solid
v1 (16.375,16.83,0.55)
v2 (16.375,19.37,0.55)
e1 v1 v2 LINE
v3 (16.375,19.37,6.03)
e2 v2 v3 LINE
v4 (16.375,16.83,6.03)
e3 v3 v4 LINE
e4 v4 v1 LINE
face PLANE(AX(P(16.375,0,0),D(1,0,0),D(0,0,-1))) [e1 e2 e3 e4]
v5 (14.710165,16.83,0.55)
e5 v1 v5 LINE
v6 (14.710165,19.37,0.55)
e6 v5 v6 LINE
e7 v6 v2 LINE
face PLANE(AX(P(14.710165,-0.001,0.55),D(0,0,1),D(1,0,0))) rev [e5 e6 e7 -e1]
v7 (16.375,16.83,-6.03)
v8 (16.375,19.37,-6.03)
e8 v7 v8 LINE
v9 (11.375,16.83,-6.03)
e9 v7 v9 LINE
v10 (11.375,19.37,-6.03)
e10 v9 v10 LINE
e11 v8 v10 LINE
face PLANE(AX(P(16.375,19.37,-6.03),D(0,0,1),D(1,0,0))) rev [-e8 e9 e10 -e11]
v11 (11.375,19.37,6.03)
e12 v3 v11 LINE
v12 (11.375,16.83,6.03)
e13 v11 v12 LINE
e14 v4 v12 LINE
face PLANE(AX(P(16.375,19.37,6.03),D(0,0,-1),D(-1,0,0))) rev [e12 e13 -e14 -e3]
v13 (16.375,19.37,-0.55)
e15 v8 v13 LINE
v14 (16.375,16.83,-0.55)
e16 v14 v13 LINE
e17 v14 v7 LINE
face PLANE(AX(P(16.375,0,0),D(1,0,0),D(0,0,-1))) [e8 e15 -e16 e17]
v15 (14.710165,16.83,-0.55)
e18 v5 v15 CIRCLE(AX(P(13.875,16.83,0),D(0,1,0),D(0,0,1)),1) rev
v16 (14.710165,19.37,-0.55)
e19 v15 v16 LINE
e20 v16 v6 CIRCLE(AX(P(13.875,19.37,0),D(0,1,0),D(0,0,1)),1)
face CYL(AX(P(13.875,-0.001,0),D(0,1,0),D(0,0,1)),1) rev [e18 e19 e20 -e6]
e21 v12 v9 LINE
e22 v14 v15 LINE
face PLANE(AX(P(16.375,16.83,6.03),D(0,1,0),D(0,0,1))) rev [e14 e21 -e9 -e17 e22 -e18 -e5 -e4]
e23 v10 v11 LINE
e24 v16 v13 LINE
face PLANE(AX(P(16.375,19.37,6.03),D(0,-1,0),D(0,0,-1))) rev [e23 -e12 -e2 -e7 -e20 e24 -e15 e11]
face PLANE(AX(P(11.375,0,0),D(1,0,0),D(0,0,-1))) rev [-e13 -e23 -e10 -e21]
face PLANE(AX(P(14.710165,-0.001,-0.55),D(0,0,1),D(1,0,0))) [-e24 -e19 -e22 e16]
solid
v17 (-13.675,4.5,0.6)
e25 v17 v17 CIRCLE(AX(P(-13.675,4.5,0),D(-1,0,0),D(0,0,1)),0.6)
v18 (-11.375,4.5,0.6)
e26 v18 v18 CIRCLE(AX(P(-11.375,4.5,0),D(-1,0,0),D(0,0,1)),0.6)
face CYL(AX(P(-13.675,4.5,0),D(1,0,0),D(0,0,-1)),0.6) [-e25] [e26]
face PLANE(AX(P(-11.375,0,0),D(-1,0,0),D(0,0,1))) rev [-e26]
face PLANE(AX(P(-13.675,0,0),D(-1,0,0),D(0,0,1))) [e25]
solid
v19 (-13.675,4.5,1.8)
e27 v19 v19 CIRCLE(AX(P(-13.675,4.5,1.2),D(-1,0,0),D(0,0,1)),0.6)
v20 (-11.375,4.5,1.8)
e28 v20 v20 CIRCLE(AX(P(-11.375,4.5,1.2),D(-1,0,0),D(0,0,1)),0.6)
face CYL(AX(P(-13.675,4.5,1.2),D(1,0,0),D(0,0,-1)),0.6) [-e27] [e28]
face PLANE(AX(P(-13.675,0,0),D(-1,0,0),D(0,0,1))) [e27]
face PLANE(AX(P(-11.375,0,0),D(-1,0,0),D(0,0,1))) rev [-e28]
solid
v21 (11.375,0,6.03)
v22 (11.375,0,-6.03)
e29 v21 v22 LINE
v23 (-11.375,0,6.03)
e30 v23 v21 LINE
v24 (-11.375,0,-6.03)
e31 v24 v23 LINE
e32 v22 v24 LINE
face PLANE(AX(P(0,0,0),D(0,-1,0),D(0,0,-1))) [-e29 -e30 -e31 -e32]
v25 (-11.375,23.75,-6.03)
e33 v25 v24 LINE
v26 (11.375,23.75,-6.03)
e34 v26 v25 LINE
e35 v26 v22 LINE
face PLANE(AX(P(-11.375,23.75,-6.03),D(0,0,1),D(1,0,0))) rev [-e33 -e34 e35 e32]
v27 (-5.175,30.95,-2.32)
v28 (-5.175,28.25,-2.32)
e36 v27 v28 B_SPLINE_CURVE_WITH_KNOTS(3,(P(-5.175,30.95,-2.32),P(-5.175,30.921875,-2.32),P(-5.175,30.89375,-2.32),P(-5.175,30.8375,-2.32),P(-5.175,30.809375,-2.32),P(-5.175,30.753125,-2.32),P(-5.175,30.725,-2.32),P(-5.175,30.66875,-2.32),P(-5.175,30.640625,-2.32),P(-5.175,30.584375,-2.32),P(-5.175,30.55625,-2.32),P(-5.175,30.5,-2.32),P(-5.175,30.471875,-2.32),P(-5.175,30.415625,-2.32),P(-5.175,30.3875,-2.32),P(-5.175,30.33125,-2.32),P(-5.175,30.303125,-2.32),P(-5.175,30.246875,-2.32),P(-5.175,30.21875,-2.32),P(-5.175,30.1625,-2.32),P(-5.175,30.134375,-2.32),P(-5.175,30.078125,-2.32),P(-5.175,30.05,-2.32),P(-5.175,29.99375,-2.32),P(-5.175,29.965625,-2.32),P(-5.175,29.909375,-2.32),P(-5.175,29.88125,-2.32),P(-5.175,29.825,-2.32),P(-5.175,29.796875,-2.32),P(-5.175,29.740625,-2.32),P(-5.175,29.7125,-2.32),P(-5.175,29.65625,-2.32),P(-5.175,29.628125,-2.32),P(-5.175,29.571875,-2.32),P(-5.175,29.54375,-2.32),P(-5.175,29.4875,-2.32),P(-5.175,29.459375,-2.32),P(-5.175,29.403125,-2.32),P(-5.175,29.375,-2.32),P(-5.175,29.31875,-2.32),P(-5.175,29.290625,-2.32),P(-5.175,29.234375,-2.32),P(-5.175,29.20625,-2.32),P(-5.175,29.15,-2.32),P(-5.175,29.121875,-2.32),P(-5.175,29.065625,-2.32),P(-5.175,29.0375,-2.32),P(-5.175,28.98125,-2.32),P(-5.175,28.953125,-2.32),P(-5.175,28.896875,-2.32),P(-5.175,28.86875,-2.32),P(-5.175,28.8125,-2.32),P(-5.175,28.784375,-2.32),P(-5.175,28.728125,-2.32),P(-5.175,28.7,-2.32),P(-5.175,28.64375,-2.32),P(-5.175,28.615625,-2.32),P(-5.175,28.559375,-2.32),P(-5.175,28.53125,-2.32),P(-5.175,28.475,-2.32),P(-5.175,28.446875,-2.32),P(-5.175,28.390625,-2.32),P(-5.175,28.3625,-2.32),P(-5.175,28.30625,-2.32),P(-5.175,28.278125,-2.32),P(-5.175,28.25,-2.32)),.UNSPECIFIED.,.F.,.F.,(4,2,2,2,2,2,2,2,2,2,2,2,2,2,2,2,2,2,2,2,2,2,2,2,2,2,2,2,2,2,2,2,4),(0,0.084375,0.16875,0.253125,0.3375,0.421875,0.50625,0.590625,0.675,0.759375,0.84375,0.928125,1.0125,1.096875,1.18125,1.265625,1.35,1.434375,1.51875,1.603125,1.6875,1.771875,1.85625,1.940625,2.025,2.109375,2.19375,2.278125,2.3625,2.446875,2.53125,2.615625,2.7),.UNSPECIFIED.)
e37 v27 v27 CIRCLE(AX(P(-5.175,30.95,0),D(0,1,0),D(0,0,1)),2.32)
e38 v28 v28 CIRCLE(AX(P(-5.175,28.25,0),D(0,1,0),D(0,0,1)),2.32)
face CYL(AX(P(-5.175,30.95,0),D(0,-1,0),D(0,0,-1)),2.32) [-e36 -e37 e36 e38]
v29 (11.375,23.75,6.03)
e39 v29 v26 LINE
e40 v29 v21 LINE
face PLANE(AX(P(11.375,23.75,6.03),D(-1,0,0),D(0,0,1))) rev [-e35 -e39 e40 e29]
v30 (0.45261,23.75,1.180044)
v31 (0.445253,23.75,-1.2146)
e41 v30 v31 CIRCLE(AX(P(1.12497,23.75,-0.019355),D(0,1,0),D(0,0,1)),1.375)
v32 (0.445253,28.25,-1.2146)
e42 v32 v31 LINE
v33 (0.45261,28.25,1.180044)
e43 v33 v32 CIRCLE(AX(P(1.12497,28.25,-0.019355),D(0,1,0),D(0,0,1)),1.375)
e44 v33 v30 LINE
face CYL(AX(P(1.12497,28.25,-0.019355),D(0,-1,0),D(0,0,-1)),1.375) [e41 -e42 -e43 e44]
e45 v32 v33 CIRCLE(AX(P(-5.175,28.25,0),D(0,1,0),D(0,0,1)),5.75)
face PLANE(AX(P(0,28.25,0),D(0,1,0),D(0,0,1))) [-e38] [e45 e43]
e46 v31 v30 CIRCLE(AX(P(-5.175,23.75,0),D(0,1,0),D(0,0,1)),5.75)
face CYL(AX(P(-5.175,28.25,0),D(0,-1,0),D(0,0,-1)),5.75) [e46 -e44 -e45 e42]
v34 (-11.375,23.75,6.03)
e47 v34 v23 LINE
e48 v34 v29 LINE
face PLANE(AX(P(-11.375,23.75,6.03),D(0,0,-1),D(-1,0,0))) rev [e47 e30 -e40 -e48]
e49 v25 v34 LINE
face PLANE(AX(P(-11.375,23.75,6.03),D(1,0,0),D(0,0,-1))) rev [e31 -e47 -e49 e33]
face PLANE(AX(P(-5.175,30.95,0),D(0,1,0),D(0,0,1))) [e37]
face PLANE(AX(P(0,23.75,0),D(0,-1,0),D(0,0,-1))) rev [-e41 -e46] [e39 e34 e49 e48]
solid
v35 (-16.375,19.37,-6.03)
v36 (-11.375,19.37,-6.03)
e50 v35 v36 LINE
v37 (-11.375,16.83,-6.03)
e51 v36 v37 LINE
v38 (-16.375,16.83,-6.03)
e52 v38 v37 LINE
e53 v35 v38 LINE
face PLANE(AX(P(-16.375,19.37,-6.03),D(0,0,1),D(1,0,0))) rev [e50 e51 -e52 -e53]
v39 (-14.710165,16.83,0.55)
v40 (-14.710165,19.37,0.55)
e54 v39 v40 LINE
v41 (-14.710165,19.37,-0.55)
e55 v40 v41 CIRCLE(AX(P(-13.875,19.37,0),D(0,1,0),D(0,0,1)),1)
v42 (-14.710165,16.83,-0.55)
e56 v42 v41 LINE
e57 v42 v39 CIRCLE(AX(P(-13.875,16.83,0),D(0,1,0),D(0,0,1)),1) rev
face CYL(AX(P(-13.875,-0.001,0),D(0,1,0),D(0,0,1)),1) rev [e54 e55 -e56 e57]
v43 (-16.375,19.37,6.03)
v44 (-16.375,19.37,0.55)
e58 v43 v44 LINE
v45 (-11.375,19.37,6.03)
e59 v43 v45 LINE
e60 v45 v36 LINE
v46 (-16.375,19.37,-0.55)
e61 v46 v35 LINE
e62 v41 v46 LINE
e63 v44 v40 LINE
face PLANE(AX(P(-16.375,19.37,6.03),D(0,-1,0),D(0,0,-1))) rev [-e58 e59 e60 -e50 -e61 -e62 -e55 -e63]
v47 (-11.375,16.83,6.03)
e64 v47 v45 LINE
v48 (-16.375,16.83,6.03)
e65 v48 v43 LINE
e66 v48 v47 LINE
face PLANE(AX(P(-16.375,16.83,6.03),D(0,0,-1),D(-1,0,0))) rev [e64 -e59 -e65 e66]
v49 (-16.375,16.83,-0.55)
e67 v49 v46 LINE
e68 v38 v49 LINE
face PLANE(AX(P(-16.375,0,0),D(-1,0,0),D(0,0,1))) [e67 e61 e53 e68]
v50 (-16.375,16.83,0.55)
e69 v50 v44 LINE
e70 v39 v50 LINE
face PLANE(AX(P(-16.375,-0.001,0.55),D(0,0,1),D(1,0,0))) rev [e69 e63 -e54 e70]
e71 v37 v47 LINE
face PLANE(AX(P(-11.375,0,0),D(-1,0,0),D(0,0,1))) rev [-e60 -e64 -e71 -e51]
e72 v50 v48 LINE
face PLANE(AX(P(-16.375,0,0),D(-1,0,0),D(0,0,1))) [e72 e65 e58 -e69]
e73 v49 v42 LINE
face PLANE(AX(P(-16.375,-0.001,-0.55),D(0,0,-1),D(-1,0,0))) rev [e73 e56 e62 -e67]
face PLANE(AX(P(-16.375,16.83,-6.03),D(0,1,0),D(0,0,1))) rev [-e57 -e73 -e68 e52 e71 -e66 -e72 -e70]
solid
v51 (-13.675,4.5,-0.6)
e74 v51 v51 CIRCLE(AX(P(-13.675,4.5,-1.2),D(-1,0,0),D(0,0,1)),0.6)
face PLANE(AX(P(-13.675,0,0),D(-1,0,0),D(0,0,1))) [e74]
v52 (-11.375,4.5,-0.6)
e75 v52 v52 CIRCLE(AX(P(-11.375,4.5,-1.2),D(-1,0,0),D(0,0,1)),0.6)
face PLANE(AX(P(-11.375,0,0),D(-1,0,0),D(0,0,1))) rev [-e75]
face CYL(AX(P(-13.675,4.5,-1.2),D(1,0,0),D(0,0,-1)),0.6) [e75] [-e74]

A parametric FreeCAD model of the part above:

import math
import FreeCAD as App
import Part
import Sketcher

doc = App.newDocument("Part")
body = doc.addObject("PartDesign::Body", "Body")

sketch1 = body.newObject("Sketcher::SketchObject", "Sketch")
sketch1.AttachmentSupport = (doc.getObject("XZ_Plane"), [""])
sketch1.MapMode = "FlatFace"
sketch1.addGeometry(Part.LineSegment(App.Vector(-11, -6, 0), App.Vector(-11, 6, 0)), False)
sketch1.addGeometry(Part.LineSegment(App.Vector(-11, 6, 0), App.Vector(11, 6, 0)), False)
sketch1.addGeometry(Part.LineSegment(App.Vector(11, 6, 0), App.Vector(11, -6, 0)), False)
sketch1.addGeometry(Part.LineSegment(App.Vector(11, -6, 0), App.Vector(-11, -6, 0)), False)
sketch1.addConstraint(Sketcher.Constraint("Coincident", 0, 2, 1, 1))
sketch1.addConstraint(Sketcher.Constraint("Coincident", 1, 2, 2, 1))
sketch1.addConstraint(Sketcher.Constraint("Coincident", 2, 2, 3, 1))
sketch1.addConstraint(Sketcher.Constraint("Coincident", 3, 2, 0, 1))
sketch1.addConstraint(Sketcher.Constraint("Vertical", 0))
sketch1.addConstraint(Sketcher.Constraint("Horizontal", 1))
sketch1.addConstraint(Sketcher.Constraint("Vertical", 2))
sketch1.addConstraint(Sketcher.Constraint("Horizontal", 3))
sketch1.addConstraint(Sketcher.Constraint("Symmetric", 0, 2, 2, 2, -1, 1))
sketch1.addConstraint(Sketcher.Constraint("DistanceX", 1, 1, 1, 2, 22.75))
sketch1.addConstraint(Sketcher.Constraint("DistanceY", 0, 1, 0, 2, 12.06))
pad1 = body.newObject("PartDesign::Pad", "Pad")
pad1.Profile = sketch1
pad1.Length = 23.75
pad1.Reversed = True

sketch2 = body.newObject("Sketcher::SketchObject", "Sketch001")
sketch2.AttachmentSupport = (doc.getObject("XZ_Plane"), [""])
sketch2.MapMode = "FlatFace"
sketch2.AttachmentOffset = App.Placement(App.Vector(0, 0, -23.75), App.Rotation())
sketch2.addGeometry(Part.ArcOfCircle(Part.Circle(App.Vector(1.1, 0, 0), App.Vector(0, 0, 1), 1.4), math.radians(-120), math.radians(119)), False)
sketch2.addGeometry(Part.ArcOfCircle(Part.Circle(App.Vector(-5.2, 0, 0), App.Vector(0, 0, 1), 5.8), math.radians(12), math.radians(348)), False)
sketch2.addConstraint(Sketcher.Constraint("Coincident", 0, 1, 1, 2))
sketch2.addConstraint(Sketcher.Constraint("Coincident", 1, 1, 0, 2))
sketch2.addConstraint(Sketcher.Constraint("PointOnObject", 1, 3, -1))
sketch2.addConstraint(Sketcher.Constraint("Radius", 1, 5.75))
sketch2.addConstraint(Sketcher.Constraint("Radius", 0, 1.375))
sketch2.addConstraint(Sketcher.Constraint("DistanceX", 1, 3, -1, 1, 5.175))
sketch2.addConstraint(Sketcher.Constraint("DistanceY", 0, 1, -1, 1, 1.2146))
sketch2.addConstraint(Sketcher.Constraint("DistanceY", 0, 3, 1, 1, 1.199399))
pad2 = body.newObject("PartDesign::Pad", "Pad001")
pad2.Profile = sketch2
pad2.Length = 4.5
pad2.Reversed = True

sketch3 = body.newObject("Sketcher::SketchObject", "Sketch002")
sketch3.AttachmentSupport = (doc.getObject("XZ_Plane"), [""])
sketch3.MapMode = "FlatFace"
sketch3.AttachmentOffset = App.Placement(App.Vector(0, 0, -28.25), App.Rotation())
sketch3.addGeometry(Part.Circle(App.Vector(-5.2, 0, 0), App.Vector(0, 0, 1), 2.3), False)
sketch3.addConstraint(Sketcher.Constraint("PointOnObject", 0, 3, -1))
sketch3.addConstraint(Sketcher.Constraint("Diameter", 0, 4.64))
sketch3.addConstraint(Sketcher.Constraint("DistanceX", 0, 3, -1, 1, 5.175))
pad3 = body.newObject("PartDesign::Pad", "Pad002")
pad3.Profile = sketch3
pad3.Length = 2.7
pad3.Reversed = True
body2 = doc.addObject("PartDesign::Body", "Body001")

sketch4 = body2.newObject("Sketcher::SketchObject", "Sketch003")
sketch4.AttachmentSupport = (doc.getObject("YZ_Plane001"), [""])
sketch4.MapMode = "FlatFace"
sketch4.AttachmentOffset = App.Placement(App.Vector(0, 0, 11.375), App.Rotation())
sketch4.addGeometry(Part.LineSegment(App.Vector(19.4, 6, 0), App.Vector(16.8, 6, 0)), False)
sketch4.addGeometry(Part.LineSegment(App.Vector(16.8, 6, 0), App.Vector(16.8, -6, 0)), False)
sketch4.addGeometry(Part.LineSegment(App.Vector(16.8, -6, 0), App.Vector(19.4, -6, 0)), False)
sketch4.addGeometry(Part.LineSegment(App.Vector(19.4, -6, 0), App.Vector(19.4, 6, 0)), False)
sketch4.addConstraint(Sketcher.Constraint("Coincident", 0, 2, 1, 1))
sketch4.addConstraint(Sketcher.Constraint("Coincident", 1, 2, 2, 1))
sketch4.addConstraint(Sketcher.Constraint("Coincident", 2, 2, 3, 1))
sketch4.addConstraint(Sketcher.Constraint("Coincident", 3, 2, 0, 1))
sketch4.addConstraint(Sketcher.Constraint("Horizontal", 0))
sketch4.addConstraint(Sketcher.Constraint("Vertical", 1))
sketch4.addConstraint(Sketcher.Constraint("Horizontal", 2))
sketch4.addConstraint(Sketcher.Constraint("Vertical", 3))
sketch4.addConstraint(Sketcher.Constraint("DistanceX", 0, 2, 0, 1, 2.54))
sketch4.addConstraint(Sketcher.Constraint("DistanceY", 1, 2, 1, 1, 12.06))
sketch4.addConstraint(Sketcher.Constraint("DistanceX", -1, 1, 0, 2, 16.83))
sketch4.addConstraint(Sketcher.Constraint("DistanceY", -1, 1, 0, 2, 6.03))
pad4 = body2.newObject("PartDesign::Pad", "Pad003")
pad4.Profile = sketch4
pad4.Length = 5

sketch5 = body2.newObject("Sketcher::SketchObject", "Sketch004")
sketch5.AttachmentSupport = (doc.getObject("XZ_Plane001"), [""])
sketch5.MapMode = "FlatFace"
sketch5.AttachmentOffset = App.Placement(App.Vector(0, 0, -19.37), App.Rotation())
sketch5.addGeometry(Part.LineSegment(App.Vector(16.4, -0.6, 0), App.Vector(14.7, -0.6, 0)), False)
sketch5.addGeometry(Part.ArcOfCircle(Part.Circle(App.Vector(13.9, 0, 0), App.Vector(0, 0, 1), 1), math.radians(33), math.radians(327)), False)
sketch5.addGeometry(Part.LineSegment(App.Vector(14.7, 0.6, 0), App.Vector(16.4, 0.6, 0)), False)
sketch5.addGeometry(Part.LineSegment(App.Vector(16.4, 0.6, 0), App.Vector(16.4, -0.6, 0)), False)
sketch5.addConstraint(Sketcher.Constraint("Coincident", 0, 2, 1, 2))
sketch5.addConstraint(Sketcher.Constraint("Coincident", 1, 1, 2, 1))
sketch5.addConstraint(Sketcher.Constraint("Coincident", 2, 2, 3, 1))
sketch5.addConstraint(Sketcher.Constraint("Coincident", 3, 2, 0, 1))
sketch5.addConstraint(Sketcher.Constraint("Horizontal", 0))
sketch5.addConstraint(Sketcher.Constraint("Horizontal", 2))
sketch5.addConstraint(Sketcher.Constraint("Vertical", 3))
sketch5.addConstraint(Sketcher.Constraint("Symmetric", 0, 2, 1, 1, -1))
sketch5.addConstraint(Sketcher.Constraint("Radius", 1, 1.0))
sketch5.addConstraint(Sketcher.Constraint("DistanceY", 3, 2, 3, 1, 1.1))
sketch5.addConstraint(Sketcher.Constraint("DistanceX", 1, 3, 2, 2, 2.5))
sketch5.addConstraint(Sketcher.Constraint("DistanceX", -1, 1, 1, 3, 13.875))
pocket1 = body2.newObject("PartDesign::Pocket", "Pocket")
pocket1.Profile = sketch5
pocket1.Length = 2.54
pocket1.Reversed = True
body3 = doc.addObject("PartDesign::Body", "Body002")

sketch6 = body3.newObject("Sketcher::SketchObject", "Sketch005")
sketch6.AttachmentSupport = (doc.getObject("YZ_Plane002"), [""])
sketch6.MapMode = "FlatFace"
sketch6.AttachmentOffset = App.Placement(App.Vector(0, 0, -11.375), App.Rotation())
sketch6.addGeometry(Part.LineSegment(App.Vector(19.4, -6, 0), App.Vector(16.8, -6, 0)), False)
sketch6.addGeometry(Part.LineSegment(App.Vector(16.8, -6, 0), App.Vector(16.8, 6, 0)), False)
sketch6.addGeometry(Part.LineSegment(App.Vector(16.8, 6, 0), App.Vector(19.4, 6, 0)), False)
sketch6.addGeometry(Part.LineSegment(App.Vector(19.4, 6, 0), App.Vector(19.4, -6, 0)), False)
sketch6.addConstraint(Sketcher.Constraint("Coincident", 0, 2, 1, 1))
sketch6.addConstraint(Sketcher.Constraint("Coincident", 1, 2, 2, 1))
sketch6.addConstraint(Sketcher.Constraint("Coincident", 2, 2, 3, 1))
sketch6.addConstraint(Sketcher.Constraint("Coincident", 3, 2, 0, 1))
sketch6.addConstraint(Sketcher.Constraint("Horizontal", 0))
sketch6.addConstraint(Sketcher.Constraint("Vertical", 1))
sketch6.addConstraint(Sketcher.Constraint("Horizontal", 2))
sketch6.addConstraint(Sketcher.Constraint("Vertical", 3))
sketch6.addConstraint(Sketcher.Constraint("DistanceX", 0, 2, 0, 1, 2.54))
sketch6.addConstraint(Sketcher.Constraint("DistanceY", 1, 1, 1, 2, 12.06))
sketch6.addConstraint(Sketcher.Constraint("DistanceX", -1, 1, 0, 2, 16.83))
sketch6.addConstraint(Sketcher.Constraint("DistanceY", 0, 2, -1, 1, 6.03))
pad5 = body3.newObject("PartDesign::Pad", "Pad004")
pad5.Profile = sketch6
pad5.Length = 5
pad5.Reversed = True

sketch7 = body3.newObject("Sketcher::SketchObject", "Sketch006")
sketch7.AttachmentSupport = (doc.getObject("XZ_Plane002"), [""])
sketch7.MapMode = "FlatFace"
sketch7.AttachmentOffset = App.Placement(App.Vector(0, 0, -19.37), App.Rotation())
sketch7.addGeometry(Part.LineSegment(App.Vector(-14.7, -0.6, 0), App.Vector(-16.4, -0.6, 0)), False)
sketch7.addGeometry(Part.LineSegment(App.Vector(-16.4, -0.6, 0), App.Vector(-16.4, 0.6, 0)), False)
sketch7.addGeometry(Part.LineSegment(App.Vector(-16.4, 0.6, 0), App.Vector(-14.7, 0.6, 0)), False)
sketch7.addGeometry(Part.ArcOfCircle(Part.Circle(App.Vector(-13.9, 0, 0), App.Vector(0, 0, 1), 1), math.radians(-147), math.radians(147)), False)
sketch7.addGeometry(Part.LineSegment(App.Vector(14.7, 0.6, 0), App.Vector(16.4, 0.6, 0)), False)
sketch7.addGeometry(Part.LineSegment(App.Vector(16.4, 0.6, 0), App.Vector(16.4, -0.6, 0)), False)
sketch7.addGeometry(Part.LineSegment(App.Vector(16.4, -0.6, 0), App.Vector(14.7, -0.6, 0)), False)
sketch7.addGeometry(Part.ArcOfCircle(Part.Circle(App.Vector(13.9, 0, 0), App.Vector(0, 0, 1), 1), math.radians(33), math.radians(327)), False)
sketch7.addConstraint(Sketcher.Constraint("Coincident", 0, 2, 1, 1))
sketch7.addConstraint(Sketcher.Constraint("Coincident", 1, 2, 2, 1))
sketch7.addConstraint(Sketcher.Constraint("Coincident", 2, 2, 3, 2))
sketch7.addConstraint(Sketcher.Constraint("Coincident", 3, 1, 0, 1))
sketch7.addConstraint(Sketcher.Constraint("Coincident", 4, 2, 5, 1))
sketch7.addConstraint(Sketcher.Constraint("Coincident", 5, 2, 6, 1))
sketch7.addConstraint(Sketcher.Constraint("Coincident", 6, 2, 7, 2))
sketch7.addConstraint(Sketcher.Constraint("Coincident", 7, 1, 4, 1))
sketch7.addConstraint(Sketcher.Constraint("Horizontal", 0))
sketch7.addConstraint(Sketcher.Constraint("Vertical", 1))
sketch7.addConstraint(Sketcher.Constraint("Horizontal", 2))
sketch7.addConstraint(Sketcher.Constraint("Horizontal", 4))
sketch7.addConstraint(Sketcher.Constraint("Vertical", 5))
sketch7.addConstraint(Sketcher.Constraint("Horizontal", 6))
sketch7.addConstraint(Sketcher.Constraint("Equal", 3, 7))
sketch7.addConstraint(Sketcher.Constraint("Symmetric", 3, 3, 7, 3, -1, 1))
sketch7.addConstraint(Sketcher.Constraint("Symmetric", 0, 2, 4, 2, -1, 1))
sketch7.addConstraint(Sketcher.Constraint("Symmetric", 3, 1, 6, 2, -2))
sketch7.addConstraint(Sketcher.Constraint("Horizontal", 2, 2, 4, 2))
sketch7.addConstraint(Sketcher.Constraint("Radius", 3, 1.0))
sketch7.addConstraint(Sketcher.Constraint("DistanceY", 1, 1, 1, 2, 1.1))
sketch7.addConstraint(Sketcher.Constraint("DistanceX", 0, 2, 3, 3, 2.5))
sketch7.addConstraint(Sketcher.Constraint("DistanceX", 3, 3, 7, 3, 27.75))
pocket2 = body3.newObject("PartDesign::Pocket", "Pocket001")
pocket2.Profile = sketch7
pocket2.Length = 2.54
pocket2.Reversed = True
body4 = doc.addObject("PartDesign::Body", "Body003")

sketch8 = body4.newObject("Sketcher::SketchObject", "Sketch007")
sketch8.AttachmentSupport = (doc.getObject("YZ_Plane003"), [""])
sketch8.MapMode = "FlatFace"
sketch8.AttachmentOffset = App.Placement(App.Vector(0, 0, -11.375), App.Rotation())
sketch8.addGeometry(Part.Circle(App.Vector(4.5, 0, 0), App.Vector(0, 0, 1), 0.6), False)
sketch8.addConstraint(Sketcher.Constraint("PointOnObject", 0, 3, -1))
sketch8.addConstraint(Sketcher.Constraint("Diameter", 0, 1.2))
sketch8.addConstraint(Sketcher.Constraint("DistanceX", -1, 1, 0, 3, 4.5))
pad6 = body4.newObject("PartDesign::Pad", "Pad005")
pad6.Profile = sketch8
pad6.Length = 2.3
pad6.Reversed = True
body5 = doc.addObject("PartDesign::Body", "Body004")

sketch9 = body5.newObject("Sketcher::SketchObject", "Sketch008")
sketch9.AttachmentSupport = (doc.getObject("YZ_Plane004"), [""])
sketch9.MapMode = "FlatFace"
sketch9.AttachmentOffset = App.Placement(App.Vector(0, 0, -11.375), App.Rotation())
sketch9.addGeometry(Part.Circle(App.Vector(4.5, -1.2, 0), App.Vector(0, 0, 1), 0.6), False)
sketch9.addConstraint(Sketcher.Constraint("Diameter", 0, 1.2))
sketch9.addConstraint(Sketcher.Constraint("DistanceX", -1, 1, 0, 3, 4.5))
sketch9.addConstraint(Sketcher.Constraint("DistanceY", 0, 3, -1, 1, 1.2))
pad7 = body5.newObject("PartDesign::Pad", "Pad006")
pad7.Profile = sketch9
pad7.Length = 2.3
pad7.Reversed = True
body6 = doc.addObject("PartDesign::Body", "Body005")

sketch10 = body6.newObject("Sketcher::SketchObject", "Sketch009")
sketch10.AttachmentSupport = (doc.getObject("YZ_Plane005"), [""])
sketch10.MapMode = "FlatFace"
sketch10.AttachmentOffset = App.Placement(App.Vector(0, 0, -11.375), App.Rotation())
sketch10.addGeometry(Part.Circle(App.Vector(4.5, 1.2, 0), App.Vector(0, 0, 1), 0.6), False)
sketch10.addConstraint(Sketcher.Constraint("Diameter", 0, 1.2))
sketch10.addConstraint(Sketcher.Constraint("DistanceX", -1, 1, 0, 3, 4.5))
sketch10.addConstraint(Sketcher.Constraint("DistanceY", -1, 1, 0, 3, 1.2))
pad8 = body6.newObject("PartDesign::Pad", "Pad007")
pad8.Profile = sketch10
pad8.Length = 2.3
pad8.Reversed = True

doc.recompute()
